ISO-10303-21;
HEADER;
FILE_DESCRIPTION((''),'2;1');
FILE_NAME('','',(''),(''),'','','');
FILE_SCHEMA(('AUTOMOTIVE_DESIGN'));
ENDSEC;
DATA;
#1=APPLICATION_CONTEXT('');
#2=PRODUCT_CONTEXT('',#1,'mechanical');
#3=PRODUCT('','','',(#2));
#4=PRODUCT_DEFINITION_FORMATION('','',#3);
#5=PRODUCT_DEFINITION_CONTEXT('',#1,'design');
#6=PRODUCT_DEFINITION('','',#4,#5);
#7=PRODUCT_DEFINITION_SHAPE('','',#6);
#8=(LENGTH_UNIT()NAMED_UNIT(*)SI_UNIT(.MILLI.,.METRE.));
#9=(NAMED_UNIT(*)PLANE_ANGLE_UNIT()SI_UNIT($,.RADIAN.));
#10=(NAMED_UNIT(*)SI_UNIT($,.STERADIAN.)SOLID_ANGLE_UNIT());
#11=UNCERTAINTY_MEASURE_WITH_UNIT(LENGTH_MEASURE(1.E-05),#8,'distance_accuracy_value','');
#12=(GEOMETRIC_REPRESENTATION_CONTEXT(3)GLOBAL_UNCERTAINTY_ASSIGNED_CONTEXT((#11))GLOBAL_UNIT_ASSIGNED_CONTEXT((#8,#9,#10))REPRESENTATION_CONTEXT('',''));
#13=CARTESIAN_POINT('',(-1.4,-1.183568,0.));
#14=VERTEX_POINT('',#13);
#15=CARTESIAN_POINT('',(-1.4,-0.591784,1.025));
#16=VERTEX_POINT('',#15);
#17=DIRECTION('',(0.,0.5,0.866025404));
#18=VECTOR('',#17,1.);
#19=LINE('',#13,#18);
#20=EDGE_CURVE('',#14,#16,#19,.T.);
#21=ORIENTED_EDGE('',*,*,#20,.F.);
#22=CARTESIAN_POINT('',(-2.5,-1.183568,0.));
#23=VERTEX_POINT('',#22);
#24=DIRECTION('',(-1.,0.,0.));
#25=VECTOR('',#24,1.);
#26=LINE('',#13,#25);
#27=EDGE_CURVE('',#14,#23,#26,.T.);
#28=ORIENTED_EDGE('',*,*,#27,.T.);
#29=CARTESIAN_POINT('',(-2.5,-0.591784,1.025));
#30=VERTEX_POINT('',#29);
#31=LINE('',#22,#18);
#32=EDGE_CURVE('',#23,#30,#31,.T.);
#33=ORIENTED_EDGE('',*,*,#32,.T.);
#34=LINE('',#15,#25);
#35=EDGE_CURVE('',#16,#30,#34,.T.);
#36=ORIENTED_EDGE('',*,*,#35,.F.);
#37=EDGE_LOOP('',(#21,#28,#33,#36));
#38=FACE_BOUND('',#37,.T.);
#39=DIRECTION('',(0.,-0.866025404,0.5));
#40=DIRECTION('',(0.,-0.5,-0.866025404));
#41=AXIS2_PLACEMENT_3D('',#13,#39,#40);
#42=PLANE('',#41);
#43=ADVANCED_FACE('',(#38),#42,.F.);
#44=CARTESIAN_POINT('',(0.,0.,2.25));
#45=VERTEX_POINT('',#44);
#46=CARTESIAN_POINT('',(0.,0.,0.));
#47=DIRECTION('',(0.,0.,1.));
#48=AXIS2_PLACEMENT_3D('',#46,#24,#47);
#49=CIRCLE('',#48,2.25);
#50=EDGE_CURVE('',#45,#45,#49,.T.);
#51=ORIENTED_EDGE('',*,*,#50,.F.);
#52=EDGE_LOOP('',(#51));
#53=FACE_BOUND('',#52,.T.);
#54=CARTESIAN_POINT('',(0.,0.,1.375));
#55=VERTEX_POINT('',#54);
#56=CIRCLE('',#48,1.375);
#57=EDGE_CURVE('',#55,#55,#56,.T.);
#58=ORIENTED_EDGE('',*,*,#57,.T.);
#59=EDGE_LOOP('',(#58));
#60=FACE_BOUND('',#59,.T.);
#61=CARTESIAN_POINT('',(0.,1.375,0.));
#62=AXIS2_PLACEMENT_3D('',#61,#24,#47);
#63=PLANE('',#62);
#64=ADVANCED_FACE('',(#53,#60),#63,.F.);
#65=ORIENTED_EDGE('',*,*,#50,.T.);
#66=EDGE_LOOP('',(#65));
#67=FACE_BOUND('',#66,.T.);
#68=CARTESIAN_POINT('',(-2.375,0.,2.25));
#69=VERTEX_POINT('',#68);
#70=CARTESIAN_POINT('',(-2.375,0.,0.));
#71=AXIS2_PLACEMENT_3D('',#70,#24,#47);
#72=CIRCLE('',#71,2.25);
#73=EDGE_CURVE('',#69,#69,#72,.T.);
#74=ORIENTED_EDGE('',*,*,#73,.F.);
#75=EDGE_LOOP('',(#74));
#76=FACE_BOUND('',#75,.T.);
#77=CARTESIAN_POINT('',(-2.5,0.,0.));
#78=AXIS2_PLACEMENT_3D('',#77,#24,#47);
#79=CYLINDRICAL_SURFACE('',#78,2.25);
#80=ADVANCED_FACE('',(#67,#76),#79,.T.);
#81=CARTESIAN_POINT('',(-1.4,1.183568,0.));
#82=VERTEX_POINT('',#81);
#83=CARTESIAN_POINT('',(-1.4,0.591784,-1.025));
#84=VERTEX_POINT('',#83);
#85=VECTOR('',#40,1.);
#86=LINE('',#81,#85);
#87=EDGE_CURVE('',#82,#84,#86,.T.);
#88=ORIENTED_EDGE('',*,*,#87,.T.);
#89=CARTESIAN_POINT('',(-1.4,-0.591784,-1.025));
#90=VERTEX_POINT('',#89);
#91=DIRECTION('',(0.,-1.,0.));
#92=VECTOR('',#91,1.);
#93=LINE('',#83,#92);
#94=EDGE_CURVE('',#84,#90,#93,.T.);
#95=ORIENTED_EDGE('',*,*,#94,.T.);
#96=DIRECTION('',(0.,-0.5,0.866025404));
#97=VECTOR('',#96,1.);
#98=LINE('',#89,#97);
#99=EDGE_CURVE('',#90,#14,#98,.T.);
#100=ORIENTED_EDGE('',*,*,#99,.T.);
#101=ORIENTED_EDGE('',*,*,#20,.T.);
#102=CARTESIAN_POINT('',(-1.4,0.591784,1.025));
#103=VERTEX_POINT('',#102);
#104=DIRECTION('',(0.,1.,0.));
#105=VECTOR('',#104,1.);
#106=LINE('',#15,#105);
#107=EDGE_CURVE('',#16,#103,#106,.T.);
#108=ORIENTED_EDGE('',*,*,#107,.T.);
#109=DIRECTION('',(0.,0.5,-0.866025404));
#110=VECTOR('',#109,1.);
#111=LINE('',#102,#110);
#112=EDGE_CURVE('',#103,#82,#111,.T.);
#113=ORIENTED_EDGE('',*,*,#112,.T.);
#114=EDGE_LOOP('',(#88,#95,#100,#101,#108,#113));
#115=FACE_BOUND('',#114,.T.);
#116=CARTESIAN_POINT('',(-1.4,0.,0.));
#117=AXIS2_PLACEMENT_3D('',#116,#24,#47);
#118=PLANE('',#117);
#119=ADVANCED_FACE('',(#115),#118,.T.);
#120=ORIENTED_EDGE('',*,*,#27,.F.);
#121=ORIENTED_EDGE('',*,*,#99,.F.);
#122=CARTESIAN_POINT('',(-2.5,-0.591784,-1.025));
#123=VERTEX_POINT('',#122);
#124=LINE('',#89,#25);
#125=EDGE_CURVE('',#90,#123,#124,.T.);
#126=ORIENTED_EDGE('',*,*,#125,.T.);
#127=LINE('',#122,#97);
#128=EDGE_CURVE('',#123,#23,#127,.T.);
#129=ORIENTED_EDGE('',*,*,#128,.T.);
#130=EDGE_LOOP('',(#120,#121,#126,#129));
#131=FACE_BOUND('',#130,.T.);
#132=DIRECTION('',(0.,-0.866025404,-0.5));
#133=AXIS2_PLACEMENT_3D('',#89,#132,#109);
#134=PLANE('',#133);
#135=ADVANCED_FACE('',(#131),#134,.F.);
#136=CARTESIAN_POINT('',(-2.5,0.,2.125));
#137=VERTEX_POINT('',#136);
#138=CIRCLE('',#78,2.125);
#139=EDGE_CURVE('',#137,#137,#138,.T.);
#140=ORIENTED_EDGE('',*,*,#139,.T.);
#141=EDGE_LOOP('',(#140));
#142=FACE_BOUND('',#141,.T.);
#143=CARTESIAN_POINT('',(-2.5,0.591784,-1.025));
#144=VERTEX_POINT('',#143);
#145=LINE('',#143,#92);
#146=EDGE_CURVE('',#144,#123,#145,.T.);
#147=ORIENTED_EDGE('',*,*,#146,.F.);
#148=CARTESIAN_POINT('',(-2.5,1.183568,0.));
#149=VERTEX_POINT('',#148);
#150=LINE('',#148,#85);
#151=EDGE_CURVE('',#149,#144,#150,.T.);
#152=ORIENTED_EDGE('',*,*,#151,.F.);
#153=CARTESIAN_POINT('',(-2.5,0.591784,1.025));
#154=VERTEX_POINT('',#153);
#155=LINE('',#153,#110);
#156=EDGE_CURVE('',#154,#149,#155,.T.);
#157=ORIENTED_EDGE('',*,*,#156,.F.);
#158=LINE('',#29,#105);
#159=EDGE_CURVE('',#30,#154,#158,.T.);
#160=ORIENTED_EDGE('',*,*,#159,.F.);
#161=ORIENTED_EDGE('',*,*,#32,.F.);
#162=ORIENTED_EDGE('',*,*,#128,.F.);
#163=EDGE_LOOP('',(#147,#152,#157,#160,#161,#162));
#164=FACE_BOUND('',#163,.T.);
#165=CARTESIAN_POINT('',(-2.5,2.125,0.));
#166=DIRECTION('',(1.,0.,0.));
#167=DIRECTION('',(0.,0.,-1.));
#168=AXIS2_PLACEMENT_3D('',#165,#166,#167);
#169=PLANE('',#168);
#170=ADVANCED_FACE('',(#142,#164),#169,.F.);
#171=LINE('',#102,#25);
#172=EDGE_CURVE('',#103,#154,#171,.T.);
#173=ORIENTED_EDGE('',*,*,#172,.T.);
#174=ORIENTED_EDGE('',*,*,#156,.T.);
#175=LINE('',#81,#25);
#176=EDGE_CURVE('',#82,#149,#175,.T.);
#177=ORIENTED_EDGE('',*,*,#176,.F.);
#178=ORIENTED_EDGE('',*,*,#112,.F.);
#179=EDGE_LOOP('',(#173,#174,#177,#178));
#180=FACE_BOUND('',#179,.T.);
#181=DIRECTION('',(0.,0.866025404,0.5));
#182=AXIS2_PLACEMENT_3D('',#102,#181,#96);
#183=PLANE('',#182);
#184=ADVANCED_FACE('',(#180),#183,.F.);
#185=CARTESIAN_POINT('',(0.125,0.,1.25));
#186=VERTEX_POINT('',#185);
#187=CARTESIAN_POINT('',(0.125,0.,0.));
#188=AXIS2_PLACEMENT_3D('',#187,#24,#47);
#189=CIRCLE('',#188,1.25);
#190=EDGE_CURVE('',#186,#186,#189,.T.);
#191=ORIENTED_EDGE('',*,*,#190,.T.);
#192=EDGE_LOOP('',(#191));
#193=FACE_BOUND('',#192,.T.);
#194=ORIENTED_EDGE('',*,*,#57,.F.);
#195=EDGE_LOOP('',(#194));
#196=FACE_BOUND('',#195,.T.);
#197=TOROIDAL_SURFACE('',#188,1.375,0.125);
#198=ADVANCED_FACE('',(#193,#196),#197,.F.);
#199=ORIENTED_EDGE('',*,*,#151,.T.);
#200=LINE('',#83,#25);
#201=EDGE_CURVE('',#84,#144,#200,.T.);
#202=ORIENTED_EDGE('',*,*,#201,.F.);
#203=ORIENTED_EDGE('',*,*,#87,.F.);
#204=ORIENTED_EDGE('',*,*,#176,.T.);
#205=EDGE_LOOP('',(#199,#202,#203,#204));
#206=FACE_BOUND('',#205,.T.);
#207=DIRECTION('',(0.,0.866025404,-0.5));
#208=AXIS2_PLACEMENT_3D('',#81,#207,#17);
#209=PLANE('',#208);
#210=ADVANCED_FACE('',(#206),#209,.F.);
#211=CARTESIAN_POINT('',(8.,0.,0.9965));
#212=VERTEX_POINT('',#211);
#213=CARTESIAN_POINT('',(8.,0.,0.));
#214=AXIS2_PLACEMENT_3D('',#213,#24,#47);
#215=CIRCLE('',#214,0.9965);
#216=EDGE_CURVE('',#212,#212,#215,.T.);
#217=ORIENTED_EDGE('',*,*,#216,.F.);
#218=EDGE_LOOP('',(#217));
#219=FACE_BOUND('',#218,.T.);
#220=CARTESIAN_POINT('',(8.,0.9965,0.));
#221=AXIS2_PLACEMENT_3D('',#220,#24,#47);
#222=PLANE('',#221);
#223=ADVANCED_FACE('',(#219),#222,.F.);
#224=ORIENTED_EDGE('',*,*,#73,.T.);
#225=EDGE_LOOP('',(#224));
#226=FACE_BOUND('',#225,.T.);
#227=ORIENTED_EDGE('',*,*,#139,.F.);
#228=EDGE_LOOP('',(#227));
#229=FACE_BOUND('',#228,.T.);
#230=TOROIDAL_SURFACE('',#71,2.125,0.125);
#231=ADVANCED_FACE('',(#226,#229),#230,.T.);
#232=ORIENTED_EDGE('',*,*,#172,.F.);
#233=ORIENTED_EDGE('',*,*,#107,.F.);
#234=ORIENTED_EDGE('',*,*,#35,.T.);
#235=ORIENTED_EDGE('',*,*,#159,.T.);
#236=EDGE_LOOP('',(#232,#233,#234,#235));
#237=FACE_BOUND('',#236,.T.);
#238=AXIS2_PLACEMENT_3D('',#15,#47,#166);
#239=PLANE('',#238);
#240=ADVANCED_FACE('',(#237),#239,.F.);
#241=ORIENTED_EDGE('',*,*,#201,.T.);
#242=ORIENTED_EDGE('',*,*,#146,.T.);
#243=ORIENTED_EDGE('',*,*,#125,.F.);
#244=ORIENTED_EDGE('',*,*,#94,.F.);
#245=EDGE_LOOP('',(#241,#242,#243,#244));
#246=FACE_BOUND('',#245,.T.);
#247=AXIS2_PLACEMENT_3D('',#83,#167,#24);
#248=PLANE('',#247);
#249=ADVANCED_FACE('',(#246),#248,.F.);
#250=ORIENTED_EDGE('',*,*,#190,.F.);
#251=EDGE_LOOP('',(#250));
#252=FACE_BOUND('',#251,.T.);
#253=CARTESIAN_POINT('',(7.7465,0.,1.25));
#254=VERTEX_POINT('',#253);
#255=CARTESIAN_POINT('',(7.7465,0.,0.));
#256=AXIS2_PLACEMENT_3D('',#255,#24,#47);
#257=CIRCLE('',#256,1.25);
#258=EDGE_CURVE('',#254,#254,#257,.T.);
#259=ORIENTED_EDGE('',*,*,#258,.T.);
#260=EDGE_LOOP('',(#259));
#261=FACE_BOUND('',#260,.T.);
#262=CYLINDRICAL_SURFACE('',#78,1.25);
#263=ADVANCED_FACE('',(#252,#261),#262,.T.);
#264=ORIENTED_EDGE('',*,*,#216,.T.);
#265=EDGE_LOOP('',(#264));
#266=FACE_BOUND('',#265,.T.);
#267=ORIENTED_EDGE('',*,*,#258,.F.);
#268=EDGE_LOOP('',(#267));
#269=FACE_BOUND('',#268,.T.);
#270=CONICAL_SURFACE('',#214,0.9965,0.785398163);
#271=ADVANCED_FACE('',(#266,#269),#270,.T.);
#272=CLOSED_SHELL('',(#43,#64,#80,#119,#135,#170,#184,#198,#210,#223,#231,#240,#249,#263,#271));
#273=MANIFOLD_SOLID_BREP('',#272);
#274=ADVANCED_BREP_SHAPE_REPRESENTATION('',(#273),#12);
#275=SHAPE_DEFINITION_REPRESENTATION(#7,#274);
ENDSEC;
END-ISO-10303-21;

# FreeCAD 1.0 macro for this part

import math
import FreeCAD as App
import Part
import Sketcher

V = App.Vector
Q = App.Units.Quantity


def add_polygon(sketch, points):
    """Adds a closed chain of lines whose ends are joined by coincident constraints."""
    first, n = sketch.GeometryCount, len(points)
    for a, b in zip(points, points[1:] + points[:1]):
        sketch.addGeometry(Part.LineSegment(App.Vector(*a, 0), App.Vector(*b, 0)), False)
    for i in range(n):
        sketch.addConstraint(Sketcher.Constraint("Coincident", first + i, 2, first + (i + 1) % n, 1))

doc = App.newDocument("Part")
params = doc.addObject("Spreadsheet::Sheet", "Params")
for row, (alias, value) in enumerate([
    ("sketch1_width", "10.5 mm"),
    ("revolution_angle", "360 deg"),
    ("pocket1_length", "1.1 mm"),
], start=1):
    params.set(f"A{row}", alias)
    params.set(f"B{row}", "=" + value)
    params.setAlias(f"B{row}", alias)

body = doc.addObject("PartDesign::Body", "Body")

sketch1 = doc.addObject("Sketcher::SketchObject", "Sketch")
body.addObject(sketch1)
sketch1.AttachmentSupport = (doc.XY_Plane, [""])
sketch1.MapMode = "FlatFace"
sketch1.addGeometry(Part.LineSegment(V(7.7465, 1.25, 0), V(0.125, 1.25, 0)), False)
sketch1.addGeometry(Part.ArcOfCircle(Part.Circle(V(0.125, 1.375, 0), V(0, 0, 1), 0.125), math.radians(180), math.radians(270)), False)
sketch1.addGeometry(Part.LineSegment(V(0, 1.375, 0), V(0, 2.25, 0)), False)
sketch1.addGeometry(Part.LineSegment(V(0, 2.25, 0), V(-2.375, 2.25, 0)), False)
sketch1.addGeometry(Part.ArcOfCircle(Part.Circle(V(-2.375, 2.125, 0), V(0, 0, 1), 0.125), math.radians(90), math.radians(180)), False)
sketch1.addGeometry(Part.LineSegment(V(-2.5, 2.125, 0), V(-2.5, 0, 0)), False)
sketch1.addGeometry(Part.LineSegment(V(-2.5, 0, 0), V(8, 0, 0)), False)
sketch1.addGeometry(Part.LineSegment(V(8, 0, 0), V(8, 0.9965, 0)), False)
sketch1.addGeometry(Part.LineSegment(V(8, 0.9965, 0), V(7.7465, 1.25, 0)), False)
sketch1.addConstraint(Sketcher.Constraint("Tangent", 0, 2, 1, 2))
sketch1.addConstraint(Sketcher.Constraint("Tangent", 1, 1, 2, 1))
sketch1.addConstraint(Sketcher.Constraint("Coincident", 2, 2, 3, 1))
sketch1.addConstraint(Sketcher.Constraint("Tangent", 3, 2, 4, 1))
sketch1.addConstraint(Sketcher.Constraint("Tangent", 4, 2, 5, 1))
sketch1.addConstraint(Sketcher.Constraint("Coincident", 5, 2, 6, 1))
sketch1.addConstraint(Sketcher.Constraint("Coincident", 6, 2, 7, 1))
sketch1.addConstraint(Sketcher.Constraint("Coincident", 7, 2, 8, 1))
sketch1.addConstraint(Sketcher.Constraint("Coincident", 8, 2, 0, 1))
sketch1.addConstraint(Sketcher.Constraint("Horizontal", 0))
sketch1.addConstraint(Sketcher.Constraint("Vertical", 2))
sketch1.addConstraint(Sketcher.Constraint("Horizontal", 3))
sketch1.addConstraint(Sketcher.Constraint("Vertical", 5))
sketch1.addConstraint(Sketcher.Constraint("Horizontal", 6))
sketch1.addConstraint(Sketcher.Constraint("Vertical", 7))
sketch1.addConstraint(Sketcher.Constraint("Equal", 1, 4))
sketch1.addConstraint(Sketcher.Constraint("PointOnObject", 1, 1, -2))
sketch1.addConstraint(Sketcher.Constraint("PointOnObject", 5, 2, -1))
sketch1.addConstraint(Sketcher.Constraint("Angle", 8, Q("135 deg")))
sketch1.addConstraint(Sketcher.Constraint("DistanceX", 6, 1, 6, 2, Q("10.5 mm")))
sketch1.addConstraint(Sketcher.Constraint("DistanceX", -1, 1, 6, 2, Q("8 mm")))
sketch1.addConstraint(Sketcher.Constraint("Radius", 1, Q("0.125 mm")))
sketch1.addConstraint(Sketcher.Constraint("DistanceY", 0, 2, 2, 2, Q("1 mm")))
sketch1.addConstraint(Sketcher.Constraint("DistanceY", 5, 2, 5, 1, Q("2.125 mm")))
sketch1.addConstraint(Sketcher.Constraint("DistanceX", 0, 2, 0, 1, Q("7.6215 mm")))
sketch1.setExpression("Constraints[19]", "Params.sketch1_width")
revolution = doc.addObject("PartDesign::Revolution", "Revolution")
body.addObject(revolution)
revolution.Profile = sketch1
revolution.ReferenceAxis = (sketch1, ["H_Axis"])
revolution.setExpression("Angle", "Params.revolution_angle")

sketch2 = doc.addObject("Sketcher::SketchObject", "Sketch001")
body.addObject(sketch2)
sketch2.AttachmentSupport = (doc.YZ_Plane, [""])
sketch2.MapMode = "FlatFace"
sketch2.AttachmentOffset = App.Placement(V(0, 0, -2.5), App.Rotation())
add_polygon(sketch2, [(0.591784, 1.025), (1.183568, 0), (0.591784, -1.025), (-0.591784, -1.025), (-1.183568, 0), (-0.591784, 1.025)])
sketch2.addConstraint(Sketcher.Constraint("Horizontal", 2))
sketch2.addConstraint(Sketcher.Constraint("Horizontal", 5))
sketch2.addConstraint(Sketcher.Constraint("Symmetric", 0, 2, 3, 2, -1, 1))
sketch2.addConstraint(Sketcher.Constraint("Symmetric", 1, 2, 4, 2, -1, 1))
sketch2.addConstraint(Sketcher.Constraint("PointOnObject", 0, 2, -1))
sketch2.addConstraint(Sketcher.Constraint("Parallel", 0, 3))
sketch2.addConstraint(Sketcher.Constraint("Vertical", 2, 2, 4, 2))
sketch2.addConstraint(Sketcher.Constraint("Angle", 0, Q("-60 deg")))
sketch2.addConstraint(Sketcher.Constraint("DistanceY", 2, 2, 4, 2, Q("2.05 mm")))
sketch2.addConstraint(Sketcher.Constraint("DistanceX", 2, 2, 2, 1, Q("1.183568 mm")))
pocket1 = doc.addObject("PartDesign::Pocket", "Pocket")
body.addObject(pocket1)
pocket1.Profile = sketch2
pocket1.setExpression("Length", "Params.pocket1_length")
pocket1.Reversed = True

doc.recompute()
